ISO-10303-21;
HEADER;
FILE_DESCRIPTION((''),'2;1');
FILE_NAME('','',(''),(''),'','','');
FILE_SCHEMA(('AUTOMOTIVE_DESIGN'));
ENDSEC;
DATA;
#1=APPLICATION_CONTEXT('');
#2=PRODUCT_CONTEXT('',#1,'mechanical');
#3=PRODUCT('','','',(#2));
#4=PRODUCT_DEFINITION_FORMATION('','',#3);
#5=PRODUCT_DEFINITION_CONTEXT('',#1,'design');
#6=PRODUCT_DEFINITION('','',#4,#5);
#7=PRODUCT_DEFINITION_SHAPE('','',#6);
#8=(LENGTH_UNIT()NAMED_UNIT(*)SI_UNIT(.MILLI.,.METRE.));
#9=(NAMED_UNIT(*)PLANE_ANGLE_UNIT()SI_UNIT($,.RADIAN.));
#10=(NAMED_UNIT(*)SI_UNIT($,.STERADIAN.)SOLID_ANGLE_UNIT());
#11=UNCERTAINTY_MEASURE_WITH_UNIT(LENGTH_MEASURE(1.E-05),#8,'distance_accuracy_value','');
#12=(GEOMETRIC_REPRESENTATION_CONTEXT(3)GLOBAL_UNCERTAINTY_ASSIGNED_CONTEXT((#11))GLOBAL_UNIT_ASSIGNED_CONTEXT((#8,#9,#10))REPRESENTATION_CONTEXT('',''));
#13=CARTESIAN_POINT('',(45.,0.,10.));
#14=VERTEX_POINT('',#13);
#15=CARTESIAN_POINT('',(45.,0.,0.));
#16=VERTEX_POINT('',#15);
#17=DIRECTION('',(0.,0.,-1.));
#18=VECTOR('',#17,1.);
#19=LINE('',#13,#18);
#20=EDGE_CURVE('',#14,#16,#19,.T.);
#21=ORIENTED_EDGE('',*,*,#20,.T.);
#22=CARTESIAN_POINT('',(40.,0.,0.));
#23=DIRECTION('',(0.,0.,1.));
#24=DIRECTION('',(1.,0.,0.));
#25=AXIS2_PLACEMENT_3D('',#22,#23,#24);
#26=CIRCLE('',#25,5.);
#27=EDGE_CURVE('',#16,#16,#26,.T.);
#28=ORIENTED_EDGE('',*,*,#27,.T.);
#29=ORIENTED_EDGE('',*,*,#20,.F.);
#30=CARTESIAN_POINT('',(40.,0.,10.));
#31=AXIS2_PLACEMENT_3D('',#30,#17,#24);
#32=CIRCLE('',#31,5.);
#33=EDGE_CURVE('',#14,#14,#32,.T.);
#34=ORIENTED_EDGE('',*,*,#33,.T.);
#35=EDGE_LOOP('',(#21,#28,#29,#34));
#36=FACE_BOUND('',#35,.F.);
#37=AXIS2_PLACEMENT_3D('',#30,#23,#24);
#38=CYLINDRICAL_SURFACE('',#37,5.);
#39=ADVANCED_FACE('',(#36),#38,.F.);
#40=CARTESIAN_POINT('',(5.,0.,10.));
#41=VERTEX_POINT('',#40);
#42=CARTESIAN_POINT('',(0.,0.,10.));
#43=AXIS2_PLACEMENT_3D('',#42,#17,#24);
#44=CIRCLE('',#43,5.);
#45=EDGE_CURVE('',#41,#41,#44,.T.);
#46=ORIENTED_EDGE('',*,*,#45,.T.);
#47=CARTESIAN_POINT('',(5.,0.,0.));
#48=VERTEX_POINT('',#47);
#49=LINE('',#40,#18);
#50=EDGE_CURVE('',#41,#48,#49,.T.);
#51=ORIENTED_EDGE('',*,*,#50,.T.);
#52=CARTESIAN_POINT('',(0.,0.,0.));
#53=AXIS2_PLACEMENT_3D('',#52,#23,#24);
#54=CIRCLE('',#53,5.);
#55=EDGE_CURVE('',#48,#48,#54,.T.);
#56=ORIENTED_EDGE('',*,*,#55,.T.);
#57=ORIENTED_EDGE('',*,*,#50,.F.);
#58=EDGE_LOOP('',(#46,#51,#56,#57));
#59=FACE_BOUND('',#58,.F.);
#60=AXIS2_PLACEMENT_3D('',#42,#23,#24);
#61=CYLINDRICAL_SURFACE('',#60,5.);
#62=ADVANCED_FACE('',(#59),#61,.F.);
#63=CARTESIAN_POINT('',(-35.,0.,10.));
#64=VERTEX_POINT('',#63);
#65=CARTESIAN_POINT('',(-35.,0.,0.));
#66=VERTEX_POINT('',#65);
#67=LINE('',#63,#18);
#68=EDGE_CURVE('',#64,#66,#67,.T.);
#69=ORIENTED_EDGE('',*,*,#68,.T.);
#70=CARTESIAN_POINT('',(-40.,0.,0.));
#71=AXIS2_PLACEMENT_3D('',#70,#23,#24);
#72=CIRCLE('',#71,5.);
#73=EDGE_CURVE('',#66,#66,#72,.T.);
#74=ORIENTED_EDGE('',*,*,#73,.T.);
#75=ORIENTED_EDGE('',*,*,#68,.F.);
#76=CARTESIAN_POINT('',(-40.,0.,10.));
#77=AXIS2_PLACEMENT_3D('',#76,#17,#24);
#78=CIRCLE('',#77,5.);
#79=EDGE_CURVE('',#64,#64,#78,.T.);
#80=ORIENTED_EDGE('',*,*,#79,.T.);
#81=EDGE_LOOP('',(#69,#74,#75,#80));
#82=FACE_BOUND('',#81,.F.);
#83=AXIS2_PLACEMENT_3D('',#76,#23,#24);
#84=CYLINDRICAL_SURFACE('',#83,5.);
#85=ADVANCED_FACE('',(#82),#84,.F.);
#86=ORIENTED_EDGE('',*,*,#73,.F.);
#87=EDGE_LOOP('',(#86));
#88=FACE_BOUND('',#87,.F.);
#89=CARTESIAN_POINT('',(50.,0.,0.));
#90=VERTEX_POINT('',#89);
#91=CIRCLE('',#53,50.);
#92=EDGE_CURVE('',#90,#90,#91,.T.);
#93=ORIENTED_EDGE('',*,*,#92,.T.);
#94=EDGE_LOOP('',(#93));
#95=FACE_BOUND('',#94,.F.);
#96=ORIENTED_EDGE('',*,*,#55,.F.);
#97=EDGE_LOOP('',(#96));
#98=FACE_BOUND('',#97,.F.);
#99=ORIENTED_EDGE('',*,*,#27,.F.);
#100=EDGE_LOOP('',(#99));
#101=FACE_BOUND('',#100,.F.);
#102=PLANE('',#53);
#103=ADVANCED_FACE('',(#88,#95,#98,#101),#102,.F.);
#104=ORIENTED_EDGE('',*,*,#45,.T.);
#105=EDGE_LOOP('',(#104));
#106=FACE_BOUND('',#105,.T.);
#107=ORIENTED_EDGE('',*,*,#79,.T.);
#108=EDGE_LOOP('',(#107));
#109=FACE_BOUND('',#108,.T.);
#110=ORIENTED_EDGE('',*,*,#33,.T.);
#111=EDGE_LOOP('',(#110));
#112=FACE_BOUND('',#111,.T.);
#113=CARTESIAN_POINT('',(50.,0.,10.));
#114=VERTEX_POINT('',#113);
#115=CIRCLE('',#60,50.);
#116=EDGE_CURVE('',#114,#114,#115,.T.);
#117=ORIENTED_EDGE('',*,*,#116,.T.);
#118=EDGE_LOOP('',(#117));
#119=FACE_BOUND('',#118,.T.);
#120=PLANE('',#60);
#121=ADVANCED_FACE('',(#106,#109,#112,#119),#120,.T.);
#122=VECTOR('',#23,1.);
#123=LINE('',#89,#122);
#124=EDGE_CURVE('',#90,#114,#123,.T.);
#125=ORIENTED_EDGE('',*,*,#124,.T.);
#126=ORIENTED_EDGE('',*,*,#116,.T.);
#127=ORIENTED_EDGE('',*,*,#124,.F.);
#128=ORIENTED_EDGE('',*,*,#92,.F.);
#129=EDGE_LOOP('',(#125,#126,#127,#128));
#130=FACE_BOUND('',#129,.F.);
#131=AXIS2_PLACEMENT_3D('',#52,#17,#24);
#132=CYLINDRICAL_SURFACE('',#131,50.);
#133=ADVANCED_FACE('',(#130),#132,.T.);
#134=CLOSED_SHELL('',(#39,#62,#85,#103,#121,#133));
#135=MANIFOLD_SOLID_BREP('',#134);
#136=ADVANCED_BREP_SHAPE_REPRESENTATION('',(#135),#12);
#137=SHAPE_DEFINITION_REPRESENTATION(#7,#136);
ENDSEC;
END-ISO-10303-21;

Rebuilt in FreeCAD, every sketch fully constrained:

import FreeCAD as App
import Part
import Sketcher
from FreeCAD import Vector
Q = App.Units.Quantity

doc = App.newDocument("Part")
body = doc.addObject("PartDesign::Body", "Body")

sketch1 = doc.addObject("Sketcher::SketchObject", "Sketch")
body.addObject(sketch1)
sketch1.AttachmentSupport = (doc.XY_Plane, [""])
sketch1.MapMode = "FlatFace"
sketch1.addGeometry(Part.Circle(Vector(0, 0, 0), Vector(0, 0, 1), 50), False)
sketch1.addConstraint(Sketcher.Constraint("Coincident", 0, 3, -1, 1))
sketch1.addConstraint(Sketcher.Constraint("Diameter", 0, Q("100 mm")))
pad1 = doc.addObject("PartDesign::Pad", "Pad")
body.addObject(pad1)
pad1.Profile = sketch1
pad1.Length = 10

sketch2 = doc.addObject("Sketcher::SketchObject", "Sketch001")
body.addObject(sketch2)
sketch2.AttachmentSupport = (doc.XY_Plane, [""])
sketch2.MapMode = "FlatFace"
sketch2.AttachmentOffset = App.Placement(Vector(0, 0, 10), App.Rotation())
sketch2.addGeometry(Part.Circle(Vector(-40, 0, 0), Vector(0, 0, 1), 5), False)
sketch2.addGeometry(Part.Circle(Vector(40, 0, 0), Vector(0, 0, 1), 5), False)
sketch2.addGeometry(Part.Circle(Vector(0, 0, 0), Vector(0, 0, 1), 5), False)
sketch2.addConstraint(Sketcher.Constraint("Coincident", 2, 3, -1, 1))
sketch2.addConstraint(Sketcher.Constraint("Equal", 0, 1))
sketch2.addConstraint(Sketcher.Constraint("Equal", 1, 2))
sketch2.addConstraint(Sketcher.Constraint("Symmetric", 0, 3, 1, 3, -1, 1))
sketch2.addConstraint(Sketcher.Constraint("PointOnObject", 0, 3, -1))
sketch2.addConstraint(Sketcher.Constraint("Diameter", 0, Q("10 mm")))
sketch2.addConstraint(Sketcher.Constraint("DistanceX", 0, 3, -1, 1, Q("40 mm")))
pocket1 = doc.addObject("PartDesign::Pocket", "Pocket")
body.addObject(pocket1)
pocket1.Profile = sketch2
pocket1.Type = "ThroughAll"

doc.recompute()
